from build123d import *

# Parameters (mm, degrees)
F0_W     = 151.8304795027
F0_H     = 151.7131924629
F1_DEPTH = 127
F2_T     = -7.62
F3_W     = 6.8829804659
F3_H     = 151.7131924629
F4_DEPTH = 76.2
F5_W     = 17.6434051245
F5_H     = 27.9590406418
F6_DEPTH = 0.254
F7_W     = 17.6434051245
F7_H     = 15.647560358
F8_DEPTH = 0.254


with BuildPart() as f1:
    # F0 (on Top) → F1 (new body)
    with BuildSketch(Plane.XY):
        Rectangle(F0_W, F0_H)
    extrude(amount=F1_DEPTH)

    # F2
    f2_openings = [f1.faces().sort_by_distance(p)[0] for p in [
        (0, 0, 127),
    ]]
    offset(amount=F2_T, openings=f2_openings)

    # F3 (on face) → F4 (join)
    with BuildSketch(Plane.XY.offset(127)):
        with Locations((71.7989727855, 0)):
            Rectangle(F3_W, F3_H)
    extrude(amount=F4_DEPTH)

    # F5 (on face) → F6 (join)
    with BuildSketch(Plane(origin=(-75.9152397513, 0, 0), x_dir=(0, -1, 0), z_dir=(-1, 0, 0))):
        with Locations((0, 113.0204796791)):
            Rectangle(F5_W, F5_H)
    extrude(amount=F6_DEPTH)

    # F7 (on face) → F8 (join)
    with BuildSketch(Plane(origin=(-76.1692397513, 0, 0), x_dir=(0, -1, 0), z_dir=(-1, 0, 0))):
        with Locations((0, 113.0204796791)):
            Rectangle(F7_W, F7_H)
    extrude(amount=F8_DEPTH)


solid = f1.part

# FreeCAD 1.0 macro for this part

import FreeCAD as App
import Part
import Sketcher
from FreeCAD import Vector
Q = App.Units.Quantity


def faces_at(feature, points):
    """Names of the faces that lie closest to the given points."""
    faces = feature.Shape.Faces
    near = lambda p: min(range(len(faces)), key=lambda i: faces[i].distToShape(Part.Vertex(*p))[0])
    return sorted({f"Face{near(p) + 1}" for p in points})

doc = App.newDocument("Part")
params = doc.addObject("Spreadsheet::Sheet", "Params")
for row, (alias, value) in enumerate([
    ("pad1_length", "5 in"),
    ("thickness_wall", "0.3 in"),
    ("pad2_length", "3 in"),
    ("pad3_length", "0.01 in"),
    ("pad4_length", "0.01 in"),
], start=1):
    params.set(f"A{row}", alias)
    params.set(f"B{row}", "=" + value)
    params.setAlias(f"B{row}", alias)

body = doc.addObject("PartDesign::Body", "Body")

# Sketch on XY plane
sketch1 = doc.addObject("Sketcher::SketchObject", "Sketch")
body.addObject(sketch1)
sketch1.AttachmentSupport = (doc.XY_Plane, [""])
sketch1.MapMode = "FlatFace"
sketch1.addGeometry([
    Part.LineSegment(Vector(-76, 76, 0), Vector(-76, -76, 0)),
    Part.LineSegment(Vector(-76, -76, 0), Vector(76, -76, 0)),
    Part.LineSegment(Vector(76, -76, 0), Vector(76, 76, 0)),
    Part.LineSegment(Vector(76, 76, 0), Vector(-76, 76, 0)),
], False)
sketch1.addConstraint([
    Sketcher.Constraint("Coincident", 0, 2, 1, 1),
    Sketcher.Constraint("Coincident", 1, 2, 2, 1),
    Sketcher.Constraint("Coincident", 2, 2, 3, 1),
    Sketcher.Constraint("Coincident", 3, 2, 0, 1),
    Sketcher.Constraint("Vertical", 0),
    Sketcher.Constraint("Horizontal", 1),
    Sketcher.Constraint("Vertical", 2),
    Sketcher.Constraint("Horizontal", 3),
    Sketcher.Constraint("Symmetric", 0, 2, 2, 2, -1, 1),
    Sketcher.Constraint("DistanceX", 1, 1, 1, 2, 151.83048),
    Sketcher.Constraint("DistanceY", 0, 2, 0, 1, 151.713192),
])
pad1 = doc.addObject("PartDesign::Pad", "Pad")
body.addObject(pad1)
pad1.Profile = sketch1
pad1.setExpression("Length", "Params.pad1_length")
doc.recompute()

thickness = doc.addObject("PartDesign::Thickness", "Thickness")
body.addObject(thickness)
thickness.Base = (pad1, faces_at(pad1, [(0, 0, 127)]))
thickness.setExpression("Value", "Params.thickness_wall")
thickness.Reversed = True
thickness.Join = "Arc"

# Sketch on XY plane
sketch2 = doc.addObject("Sketcher::SketchObject", "Sketch001")
body.addObject(sketch2)
sketch2.AttachmentSupport = (doc.XY_Plane, [""])
sketch2.MapMode = "FlatFace"
sketch2.AttachmentOffset = App.Placement(Vector(0, 0, 5 * 25.4), App.Rotation())
sketch2.addGeometry([
    Part.LineSegment(Vector(68, 76, 0), Vector(68, -76, 0)),
    Part.LineSegment(Vector(68, -76, 0), Vector(75, -76, 0)),
    Part.LineSegment(Vector(75, -76, 0), Vector(75, 76, 0)),
    Part.LineSegment(Vector(75, 76, 0), Vector(68, 76, 0)),
], False)
sketch2.addConstraint([
    Sketcher.Constraint("Coincident", 0, 2, 1, 1),
    Sketcher.Constraint("Coincident", 1, 2, 2, 1),
    Sketcher.Constraint("Coincident", 2, 2, 3, 1),
    Sketcher.Constraint("Coincident", 3, 2, 0, 1),
    Sketcher.Constraint("Vertical", 0),
    Sketcher.Constraint("Horizontal", 1),
    Sketcher.Constraint("Vertical", 2),
    Sketcher.Constraint("Horizontal", 3),
    Sketcher.Constraint("DistanceX", 1, 1, 1, 2, 6.88298),
    Sketcher.Constraint("DistanceY", 0, 2, 0, 1, 151.713192),
    Sketcher.Constraint("DistanceX", -1, 1, 0, 2, 68.357483),
    Sketcher.Constraint("DistanceY", 0, 2, -1, 1, 75.856596),
])
pad2 = doc.addObject("PartDesign::Pad", "Pad001")
body.addObject(pad2)
pad2.Profile = sketch2
pad2.setExpression("Length", "Params.pad2_length")

# Sketch on YZ plane
sketch3 = doc.addObject("Sketcher::SketchObject", "Sketch002")
body.addObject(sketch3)
sketch3.AttachmentSupport = (doc.YZ_Plane, [""])
sketch3.MapMode = "FlatFace"
sketch3.AttachmentOffset = App.Placement(Vector(0, 0, -75.91524), App.Rotation())
sketch3.addGeometry([
    Part.LineSegment(Vector(9, 127, 0), Vector(9, 99, 0)),
    Part.LineSegment(Vector(9, 99, 0), Vector(-9, 99, 0)),
    Part.LineSegment(Vector(-9, 99, 0), Vector(-9, 127, 0)),
    Part.LineSegment(Vector(-9, 127, 0), Vector(9, 127, 0)),
], False)
sketch3.addConstraint([
    Sketcher.Constraint("Coincident", 0, 2, 1, 1),
    Sketcher.Constraint("Coincident", 1, 2, 2, 1),
    Sketcher.Constraint("Coincident", 2, 2, 3, 1),
    Sketcher.Constraint("Coincident", 3, 2, 0, 1),
    Sketcher.Constraint("Vertical", 0),
    Sketcher.Constraint("Horizontal", 1),
    Sketcher.Constraint("Vertical", 2),
    Sketcher.Constraint("Horizontal", 3),
    Sketcher.Constraint("DistanceY", -1, 1, 2, 2, Q("5 in")),
    Sketcher.Constraint("DistanceY", 0, 2, 0, 1, 27.959041),
    Sketcher.Constraint("DistanceX", 1, 2, 1, 1, 17.643405),
    Sketcher.Constraint("DistanceX", -1, 1, 0, 2, 8.821703),
])
pad3 = doc.addObject("PartDesign::Pad", "Pad002")
body.addObject(pad3)
pad3.Profile = sketch3
pad3.setExpression("Length", "Params.pad3_length")
pad3.Reversed = True

# Sketch on YZ plane
sketch4 = doc.addObject("Sketcher::SketchObject", "Sketch003")
body.addObject(sketch4)
sketch4.AttachmentSupport = (doc.YZ_Plane, [""])
sketch4.MapMode = "FlatFace"
sketch4.AttachmentOffset = App.Placement(Vector(0, 0, -76.16924), App.Rotation())
sketch4.addGeometry([
    Part.LineSegment(Vector(9, 121, 0), Vector(9, 105, 0)),
    Part.LineSegment(Vector(9, 105, 0), Vector(-9, 105, 0)),
    Part.LineSegment(Vector(-9, 105, 0), Vector(-9, 121, 0)),
    Part.LineSegment(Vector(-9, 121, 0), Vector(9, 121, 0)),
], False)
sketch4.addConstraint([
    Sketcher.Constraint("Coincident", 0, 2, 1, 1),
    Sketcher.Constraint("Coincident", 1, 2, 2, 1),
    Sketcher.Constraint("Coincident", 2, 2, 3, 1),
    Sketcher.Constraint("Coincident", 3, 2, 0, 1),
    Sketcher.Constraint("Vertical", 0),
    Sketcher.Constraint("Horizontal", 1),
    Sketcher.Constraint("Vertical", 2),
    Sketcher.Constraint("Horizontal", 3),
    Sketcher.Constraint("DistanceY", 0, 2, 0, 1, 15.64756),
    Sketcher.Constraint("DistanceY", -1, 1, 0, 2, 105.196699),
    Sketcher.Constraint("DistanceX", 1, 2, 1, 1, 17.643405),
    Sketcher.Constraint("DistanceX", -1, 1, 0, 2, 8.821703),
])
pad4 = doc.addObject("PartDesign::Pad", "Pad003")
body.addObject(pad4)
pad4.Profile = sketch4
pad4.setExpression("Length", "Params.pad4_length")
pad4.Reversed = True

doc.recompute()
